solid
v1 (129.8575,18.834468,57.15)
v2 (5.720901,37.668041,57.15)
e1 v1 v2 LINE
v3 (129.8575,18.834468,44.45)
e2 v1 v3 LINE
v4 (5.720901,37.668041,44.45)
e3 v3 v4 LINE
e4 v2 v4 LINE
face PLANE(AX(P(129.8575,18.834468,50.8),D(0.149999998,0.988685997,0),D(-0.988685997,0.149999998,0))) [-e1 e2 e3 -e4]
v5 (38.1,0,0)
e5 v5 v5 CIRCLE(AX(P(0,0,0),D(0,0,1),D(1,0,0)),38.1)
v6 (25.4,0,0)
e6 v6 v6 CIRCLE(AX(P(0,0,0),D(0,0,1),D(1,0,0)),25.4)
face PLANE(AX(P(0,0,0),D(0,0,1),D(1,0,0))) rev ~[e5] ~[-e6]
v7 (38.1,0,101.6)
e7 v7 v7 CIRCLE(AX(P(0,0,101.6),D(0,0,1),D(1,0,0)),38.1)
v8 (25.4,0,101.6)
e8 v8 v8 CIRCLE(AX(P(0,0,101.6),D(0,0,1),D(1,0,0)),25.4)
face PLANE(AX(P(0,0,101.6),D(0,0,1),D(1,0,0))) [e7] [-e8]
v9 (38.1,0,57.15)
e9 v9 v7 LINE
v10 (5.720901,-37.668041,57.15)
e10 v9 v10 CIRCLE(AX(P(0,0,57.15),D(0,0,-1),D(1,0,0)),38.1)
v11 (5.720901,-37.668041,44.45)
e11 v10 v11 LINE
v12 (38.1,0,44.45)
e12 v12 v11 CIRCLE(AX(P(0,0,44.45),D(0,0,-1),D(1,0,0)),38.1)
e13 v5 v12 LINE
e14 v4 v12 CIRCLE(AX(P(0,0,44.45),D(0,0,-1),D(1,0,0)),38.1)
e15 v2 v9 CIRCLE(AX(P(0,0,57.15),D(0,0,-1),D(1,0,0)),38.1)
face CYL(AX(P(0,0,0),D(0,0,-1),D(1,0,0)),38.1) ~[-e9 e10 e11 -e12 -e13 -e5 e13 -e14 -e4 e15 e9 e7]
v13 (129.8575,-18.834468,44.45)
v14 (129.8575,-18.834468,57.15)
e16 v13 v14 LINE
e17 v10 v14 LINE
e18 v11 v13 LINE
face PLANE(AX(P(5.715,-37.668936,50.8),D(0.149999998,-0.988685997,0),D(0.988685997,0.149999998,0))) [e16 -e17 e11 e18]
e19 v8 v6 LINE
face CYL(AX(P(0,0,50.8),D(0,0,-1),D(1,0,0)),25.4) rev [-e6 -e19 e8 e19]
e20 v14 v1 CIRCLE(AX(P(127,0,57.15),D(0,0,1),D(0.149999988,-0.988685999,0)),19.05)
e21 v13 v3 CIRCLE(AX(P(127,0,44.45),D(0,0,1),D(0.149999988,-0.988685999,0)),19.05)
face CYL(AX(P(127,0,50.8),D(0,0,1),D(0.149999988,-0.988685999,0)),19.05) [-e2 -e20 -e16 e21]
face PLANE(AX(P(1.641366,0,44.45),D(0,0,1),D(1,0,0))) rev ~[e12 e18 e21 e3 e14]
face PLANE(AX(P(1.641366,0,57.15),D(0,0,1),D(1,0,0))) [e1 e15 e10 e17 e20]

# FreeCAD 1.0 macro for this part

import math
import FreeCAD as App
import Part
import Sketcher

V = App.Vector
Q = App.Units.Quantity

doc = App.newDocument("Part")
body = doc.addObject("PartDesign::Body", "Body")

# Sketch on XY plane
sketch1 = body.newObject("Sketcher::SketchObject", "Sketch")
sketch1.AttachmentSupport = (doc.getObject("XY_Plane"), [""])
sketch1.MapMode = "FlatFace"
sketch1.addGeometry([
    Part.Circle(V(0, 0, 0), V(0, 0, 1), 38),
    Part.Circle(V(0, 0, 0), V(0, 0, 1), 25),
], False)
sketch1.addConstraint([
    Sketcher.Constraint("Coincident", 0, 3, -1, 1),
    Sketcher.Constraint("Coincident", 1, 3, -1, 1),
    Sketcher.Constraint("Diameter", 0, Q("3 in")),
    Sketcher.Constraint("Diameter", 1, Q("2 in")),
])
pad1 = body.newObject("PartDesign::Pad", "Pad")
pad1.Profile = sketch1
pad1.Length = Q("4 in")

# Sketch on XY plane
sketch2 = body.newObject("Sketcher::SketchObject", "Sketch001")
sketch2.AttachmentSupport = (doc.getObject("XY_Plane"), [""])
sketch2.MapMode = "FlatFace"
sketch2.AttachmentOffset = App.Placement(V(0, 0, 2 * 25.4), App.Rotation())
sketch2.addGeometry([
    Part.ArcOfCircle(Part.Circle(V(0, 0, 0), V(0, 0, 1), 38), math.radians(81), math.radians(279)),  # 0
    Part.LineSegment(V(6, -38, 0), V(130, -19, 0)),  # 1
    Part.ArcOfCircle(Part.Circle(V(127, 0, 0), V(0, 0, 1), 19), math.radians(-81), math.radians(81)),  # 2
    Part.LineSegment(V(130, 19, 0), V(6, 38, 0)),  # 3
    Part.Circle(V(0, 0, 0), V(0, 0, 1), 25),  # 4
], False)
sketch2.addConstraint([
    Sketcher.Constraint("Tangent", 0, 2, 1, 1),
    Sketcher.Constraint("Tangent", 1, 2, 2, 1),
    Sketcher.Constraint("Tangent", 2, 2, 3, 1),
    Sketcher.Constraint("Tangent", 3, 2, 0, 1),
    Sketcher.Constraint("Coincident", 0, 3, -1, 1),
    Sketcher.Constraint("Coincident", 4, 3, -1, 1),
    Sketcher.Constraint("PointOnObject", 2, 3, -1),
    Sketcher.Constraint("Diameter", 4, Q("2 in")),
    Sketcher.Constraint("Radius", 0, Q("1.5 in")),
    Sketcher.Constraint("Radius", 2, Q("0.75 in")),
    Sketcher.Constraint("DistanceX", -1, 1, 2, 3, Q("5 in")),
])
pad2 = body.newObject("PartDesign::Pad", "Pad001")
pad2.Profile = sketch2
pad2.Length = Q("0.5 in")
pad2.Midplane = True

doc.recompute()
